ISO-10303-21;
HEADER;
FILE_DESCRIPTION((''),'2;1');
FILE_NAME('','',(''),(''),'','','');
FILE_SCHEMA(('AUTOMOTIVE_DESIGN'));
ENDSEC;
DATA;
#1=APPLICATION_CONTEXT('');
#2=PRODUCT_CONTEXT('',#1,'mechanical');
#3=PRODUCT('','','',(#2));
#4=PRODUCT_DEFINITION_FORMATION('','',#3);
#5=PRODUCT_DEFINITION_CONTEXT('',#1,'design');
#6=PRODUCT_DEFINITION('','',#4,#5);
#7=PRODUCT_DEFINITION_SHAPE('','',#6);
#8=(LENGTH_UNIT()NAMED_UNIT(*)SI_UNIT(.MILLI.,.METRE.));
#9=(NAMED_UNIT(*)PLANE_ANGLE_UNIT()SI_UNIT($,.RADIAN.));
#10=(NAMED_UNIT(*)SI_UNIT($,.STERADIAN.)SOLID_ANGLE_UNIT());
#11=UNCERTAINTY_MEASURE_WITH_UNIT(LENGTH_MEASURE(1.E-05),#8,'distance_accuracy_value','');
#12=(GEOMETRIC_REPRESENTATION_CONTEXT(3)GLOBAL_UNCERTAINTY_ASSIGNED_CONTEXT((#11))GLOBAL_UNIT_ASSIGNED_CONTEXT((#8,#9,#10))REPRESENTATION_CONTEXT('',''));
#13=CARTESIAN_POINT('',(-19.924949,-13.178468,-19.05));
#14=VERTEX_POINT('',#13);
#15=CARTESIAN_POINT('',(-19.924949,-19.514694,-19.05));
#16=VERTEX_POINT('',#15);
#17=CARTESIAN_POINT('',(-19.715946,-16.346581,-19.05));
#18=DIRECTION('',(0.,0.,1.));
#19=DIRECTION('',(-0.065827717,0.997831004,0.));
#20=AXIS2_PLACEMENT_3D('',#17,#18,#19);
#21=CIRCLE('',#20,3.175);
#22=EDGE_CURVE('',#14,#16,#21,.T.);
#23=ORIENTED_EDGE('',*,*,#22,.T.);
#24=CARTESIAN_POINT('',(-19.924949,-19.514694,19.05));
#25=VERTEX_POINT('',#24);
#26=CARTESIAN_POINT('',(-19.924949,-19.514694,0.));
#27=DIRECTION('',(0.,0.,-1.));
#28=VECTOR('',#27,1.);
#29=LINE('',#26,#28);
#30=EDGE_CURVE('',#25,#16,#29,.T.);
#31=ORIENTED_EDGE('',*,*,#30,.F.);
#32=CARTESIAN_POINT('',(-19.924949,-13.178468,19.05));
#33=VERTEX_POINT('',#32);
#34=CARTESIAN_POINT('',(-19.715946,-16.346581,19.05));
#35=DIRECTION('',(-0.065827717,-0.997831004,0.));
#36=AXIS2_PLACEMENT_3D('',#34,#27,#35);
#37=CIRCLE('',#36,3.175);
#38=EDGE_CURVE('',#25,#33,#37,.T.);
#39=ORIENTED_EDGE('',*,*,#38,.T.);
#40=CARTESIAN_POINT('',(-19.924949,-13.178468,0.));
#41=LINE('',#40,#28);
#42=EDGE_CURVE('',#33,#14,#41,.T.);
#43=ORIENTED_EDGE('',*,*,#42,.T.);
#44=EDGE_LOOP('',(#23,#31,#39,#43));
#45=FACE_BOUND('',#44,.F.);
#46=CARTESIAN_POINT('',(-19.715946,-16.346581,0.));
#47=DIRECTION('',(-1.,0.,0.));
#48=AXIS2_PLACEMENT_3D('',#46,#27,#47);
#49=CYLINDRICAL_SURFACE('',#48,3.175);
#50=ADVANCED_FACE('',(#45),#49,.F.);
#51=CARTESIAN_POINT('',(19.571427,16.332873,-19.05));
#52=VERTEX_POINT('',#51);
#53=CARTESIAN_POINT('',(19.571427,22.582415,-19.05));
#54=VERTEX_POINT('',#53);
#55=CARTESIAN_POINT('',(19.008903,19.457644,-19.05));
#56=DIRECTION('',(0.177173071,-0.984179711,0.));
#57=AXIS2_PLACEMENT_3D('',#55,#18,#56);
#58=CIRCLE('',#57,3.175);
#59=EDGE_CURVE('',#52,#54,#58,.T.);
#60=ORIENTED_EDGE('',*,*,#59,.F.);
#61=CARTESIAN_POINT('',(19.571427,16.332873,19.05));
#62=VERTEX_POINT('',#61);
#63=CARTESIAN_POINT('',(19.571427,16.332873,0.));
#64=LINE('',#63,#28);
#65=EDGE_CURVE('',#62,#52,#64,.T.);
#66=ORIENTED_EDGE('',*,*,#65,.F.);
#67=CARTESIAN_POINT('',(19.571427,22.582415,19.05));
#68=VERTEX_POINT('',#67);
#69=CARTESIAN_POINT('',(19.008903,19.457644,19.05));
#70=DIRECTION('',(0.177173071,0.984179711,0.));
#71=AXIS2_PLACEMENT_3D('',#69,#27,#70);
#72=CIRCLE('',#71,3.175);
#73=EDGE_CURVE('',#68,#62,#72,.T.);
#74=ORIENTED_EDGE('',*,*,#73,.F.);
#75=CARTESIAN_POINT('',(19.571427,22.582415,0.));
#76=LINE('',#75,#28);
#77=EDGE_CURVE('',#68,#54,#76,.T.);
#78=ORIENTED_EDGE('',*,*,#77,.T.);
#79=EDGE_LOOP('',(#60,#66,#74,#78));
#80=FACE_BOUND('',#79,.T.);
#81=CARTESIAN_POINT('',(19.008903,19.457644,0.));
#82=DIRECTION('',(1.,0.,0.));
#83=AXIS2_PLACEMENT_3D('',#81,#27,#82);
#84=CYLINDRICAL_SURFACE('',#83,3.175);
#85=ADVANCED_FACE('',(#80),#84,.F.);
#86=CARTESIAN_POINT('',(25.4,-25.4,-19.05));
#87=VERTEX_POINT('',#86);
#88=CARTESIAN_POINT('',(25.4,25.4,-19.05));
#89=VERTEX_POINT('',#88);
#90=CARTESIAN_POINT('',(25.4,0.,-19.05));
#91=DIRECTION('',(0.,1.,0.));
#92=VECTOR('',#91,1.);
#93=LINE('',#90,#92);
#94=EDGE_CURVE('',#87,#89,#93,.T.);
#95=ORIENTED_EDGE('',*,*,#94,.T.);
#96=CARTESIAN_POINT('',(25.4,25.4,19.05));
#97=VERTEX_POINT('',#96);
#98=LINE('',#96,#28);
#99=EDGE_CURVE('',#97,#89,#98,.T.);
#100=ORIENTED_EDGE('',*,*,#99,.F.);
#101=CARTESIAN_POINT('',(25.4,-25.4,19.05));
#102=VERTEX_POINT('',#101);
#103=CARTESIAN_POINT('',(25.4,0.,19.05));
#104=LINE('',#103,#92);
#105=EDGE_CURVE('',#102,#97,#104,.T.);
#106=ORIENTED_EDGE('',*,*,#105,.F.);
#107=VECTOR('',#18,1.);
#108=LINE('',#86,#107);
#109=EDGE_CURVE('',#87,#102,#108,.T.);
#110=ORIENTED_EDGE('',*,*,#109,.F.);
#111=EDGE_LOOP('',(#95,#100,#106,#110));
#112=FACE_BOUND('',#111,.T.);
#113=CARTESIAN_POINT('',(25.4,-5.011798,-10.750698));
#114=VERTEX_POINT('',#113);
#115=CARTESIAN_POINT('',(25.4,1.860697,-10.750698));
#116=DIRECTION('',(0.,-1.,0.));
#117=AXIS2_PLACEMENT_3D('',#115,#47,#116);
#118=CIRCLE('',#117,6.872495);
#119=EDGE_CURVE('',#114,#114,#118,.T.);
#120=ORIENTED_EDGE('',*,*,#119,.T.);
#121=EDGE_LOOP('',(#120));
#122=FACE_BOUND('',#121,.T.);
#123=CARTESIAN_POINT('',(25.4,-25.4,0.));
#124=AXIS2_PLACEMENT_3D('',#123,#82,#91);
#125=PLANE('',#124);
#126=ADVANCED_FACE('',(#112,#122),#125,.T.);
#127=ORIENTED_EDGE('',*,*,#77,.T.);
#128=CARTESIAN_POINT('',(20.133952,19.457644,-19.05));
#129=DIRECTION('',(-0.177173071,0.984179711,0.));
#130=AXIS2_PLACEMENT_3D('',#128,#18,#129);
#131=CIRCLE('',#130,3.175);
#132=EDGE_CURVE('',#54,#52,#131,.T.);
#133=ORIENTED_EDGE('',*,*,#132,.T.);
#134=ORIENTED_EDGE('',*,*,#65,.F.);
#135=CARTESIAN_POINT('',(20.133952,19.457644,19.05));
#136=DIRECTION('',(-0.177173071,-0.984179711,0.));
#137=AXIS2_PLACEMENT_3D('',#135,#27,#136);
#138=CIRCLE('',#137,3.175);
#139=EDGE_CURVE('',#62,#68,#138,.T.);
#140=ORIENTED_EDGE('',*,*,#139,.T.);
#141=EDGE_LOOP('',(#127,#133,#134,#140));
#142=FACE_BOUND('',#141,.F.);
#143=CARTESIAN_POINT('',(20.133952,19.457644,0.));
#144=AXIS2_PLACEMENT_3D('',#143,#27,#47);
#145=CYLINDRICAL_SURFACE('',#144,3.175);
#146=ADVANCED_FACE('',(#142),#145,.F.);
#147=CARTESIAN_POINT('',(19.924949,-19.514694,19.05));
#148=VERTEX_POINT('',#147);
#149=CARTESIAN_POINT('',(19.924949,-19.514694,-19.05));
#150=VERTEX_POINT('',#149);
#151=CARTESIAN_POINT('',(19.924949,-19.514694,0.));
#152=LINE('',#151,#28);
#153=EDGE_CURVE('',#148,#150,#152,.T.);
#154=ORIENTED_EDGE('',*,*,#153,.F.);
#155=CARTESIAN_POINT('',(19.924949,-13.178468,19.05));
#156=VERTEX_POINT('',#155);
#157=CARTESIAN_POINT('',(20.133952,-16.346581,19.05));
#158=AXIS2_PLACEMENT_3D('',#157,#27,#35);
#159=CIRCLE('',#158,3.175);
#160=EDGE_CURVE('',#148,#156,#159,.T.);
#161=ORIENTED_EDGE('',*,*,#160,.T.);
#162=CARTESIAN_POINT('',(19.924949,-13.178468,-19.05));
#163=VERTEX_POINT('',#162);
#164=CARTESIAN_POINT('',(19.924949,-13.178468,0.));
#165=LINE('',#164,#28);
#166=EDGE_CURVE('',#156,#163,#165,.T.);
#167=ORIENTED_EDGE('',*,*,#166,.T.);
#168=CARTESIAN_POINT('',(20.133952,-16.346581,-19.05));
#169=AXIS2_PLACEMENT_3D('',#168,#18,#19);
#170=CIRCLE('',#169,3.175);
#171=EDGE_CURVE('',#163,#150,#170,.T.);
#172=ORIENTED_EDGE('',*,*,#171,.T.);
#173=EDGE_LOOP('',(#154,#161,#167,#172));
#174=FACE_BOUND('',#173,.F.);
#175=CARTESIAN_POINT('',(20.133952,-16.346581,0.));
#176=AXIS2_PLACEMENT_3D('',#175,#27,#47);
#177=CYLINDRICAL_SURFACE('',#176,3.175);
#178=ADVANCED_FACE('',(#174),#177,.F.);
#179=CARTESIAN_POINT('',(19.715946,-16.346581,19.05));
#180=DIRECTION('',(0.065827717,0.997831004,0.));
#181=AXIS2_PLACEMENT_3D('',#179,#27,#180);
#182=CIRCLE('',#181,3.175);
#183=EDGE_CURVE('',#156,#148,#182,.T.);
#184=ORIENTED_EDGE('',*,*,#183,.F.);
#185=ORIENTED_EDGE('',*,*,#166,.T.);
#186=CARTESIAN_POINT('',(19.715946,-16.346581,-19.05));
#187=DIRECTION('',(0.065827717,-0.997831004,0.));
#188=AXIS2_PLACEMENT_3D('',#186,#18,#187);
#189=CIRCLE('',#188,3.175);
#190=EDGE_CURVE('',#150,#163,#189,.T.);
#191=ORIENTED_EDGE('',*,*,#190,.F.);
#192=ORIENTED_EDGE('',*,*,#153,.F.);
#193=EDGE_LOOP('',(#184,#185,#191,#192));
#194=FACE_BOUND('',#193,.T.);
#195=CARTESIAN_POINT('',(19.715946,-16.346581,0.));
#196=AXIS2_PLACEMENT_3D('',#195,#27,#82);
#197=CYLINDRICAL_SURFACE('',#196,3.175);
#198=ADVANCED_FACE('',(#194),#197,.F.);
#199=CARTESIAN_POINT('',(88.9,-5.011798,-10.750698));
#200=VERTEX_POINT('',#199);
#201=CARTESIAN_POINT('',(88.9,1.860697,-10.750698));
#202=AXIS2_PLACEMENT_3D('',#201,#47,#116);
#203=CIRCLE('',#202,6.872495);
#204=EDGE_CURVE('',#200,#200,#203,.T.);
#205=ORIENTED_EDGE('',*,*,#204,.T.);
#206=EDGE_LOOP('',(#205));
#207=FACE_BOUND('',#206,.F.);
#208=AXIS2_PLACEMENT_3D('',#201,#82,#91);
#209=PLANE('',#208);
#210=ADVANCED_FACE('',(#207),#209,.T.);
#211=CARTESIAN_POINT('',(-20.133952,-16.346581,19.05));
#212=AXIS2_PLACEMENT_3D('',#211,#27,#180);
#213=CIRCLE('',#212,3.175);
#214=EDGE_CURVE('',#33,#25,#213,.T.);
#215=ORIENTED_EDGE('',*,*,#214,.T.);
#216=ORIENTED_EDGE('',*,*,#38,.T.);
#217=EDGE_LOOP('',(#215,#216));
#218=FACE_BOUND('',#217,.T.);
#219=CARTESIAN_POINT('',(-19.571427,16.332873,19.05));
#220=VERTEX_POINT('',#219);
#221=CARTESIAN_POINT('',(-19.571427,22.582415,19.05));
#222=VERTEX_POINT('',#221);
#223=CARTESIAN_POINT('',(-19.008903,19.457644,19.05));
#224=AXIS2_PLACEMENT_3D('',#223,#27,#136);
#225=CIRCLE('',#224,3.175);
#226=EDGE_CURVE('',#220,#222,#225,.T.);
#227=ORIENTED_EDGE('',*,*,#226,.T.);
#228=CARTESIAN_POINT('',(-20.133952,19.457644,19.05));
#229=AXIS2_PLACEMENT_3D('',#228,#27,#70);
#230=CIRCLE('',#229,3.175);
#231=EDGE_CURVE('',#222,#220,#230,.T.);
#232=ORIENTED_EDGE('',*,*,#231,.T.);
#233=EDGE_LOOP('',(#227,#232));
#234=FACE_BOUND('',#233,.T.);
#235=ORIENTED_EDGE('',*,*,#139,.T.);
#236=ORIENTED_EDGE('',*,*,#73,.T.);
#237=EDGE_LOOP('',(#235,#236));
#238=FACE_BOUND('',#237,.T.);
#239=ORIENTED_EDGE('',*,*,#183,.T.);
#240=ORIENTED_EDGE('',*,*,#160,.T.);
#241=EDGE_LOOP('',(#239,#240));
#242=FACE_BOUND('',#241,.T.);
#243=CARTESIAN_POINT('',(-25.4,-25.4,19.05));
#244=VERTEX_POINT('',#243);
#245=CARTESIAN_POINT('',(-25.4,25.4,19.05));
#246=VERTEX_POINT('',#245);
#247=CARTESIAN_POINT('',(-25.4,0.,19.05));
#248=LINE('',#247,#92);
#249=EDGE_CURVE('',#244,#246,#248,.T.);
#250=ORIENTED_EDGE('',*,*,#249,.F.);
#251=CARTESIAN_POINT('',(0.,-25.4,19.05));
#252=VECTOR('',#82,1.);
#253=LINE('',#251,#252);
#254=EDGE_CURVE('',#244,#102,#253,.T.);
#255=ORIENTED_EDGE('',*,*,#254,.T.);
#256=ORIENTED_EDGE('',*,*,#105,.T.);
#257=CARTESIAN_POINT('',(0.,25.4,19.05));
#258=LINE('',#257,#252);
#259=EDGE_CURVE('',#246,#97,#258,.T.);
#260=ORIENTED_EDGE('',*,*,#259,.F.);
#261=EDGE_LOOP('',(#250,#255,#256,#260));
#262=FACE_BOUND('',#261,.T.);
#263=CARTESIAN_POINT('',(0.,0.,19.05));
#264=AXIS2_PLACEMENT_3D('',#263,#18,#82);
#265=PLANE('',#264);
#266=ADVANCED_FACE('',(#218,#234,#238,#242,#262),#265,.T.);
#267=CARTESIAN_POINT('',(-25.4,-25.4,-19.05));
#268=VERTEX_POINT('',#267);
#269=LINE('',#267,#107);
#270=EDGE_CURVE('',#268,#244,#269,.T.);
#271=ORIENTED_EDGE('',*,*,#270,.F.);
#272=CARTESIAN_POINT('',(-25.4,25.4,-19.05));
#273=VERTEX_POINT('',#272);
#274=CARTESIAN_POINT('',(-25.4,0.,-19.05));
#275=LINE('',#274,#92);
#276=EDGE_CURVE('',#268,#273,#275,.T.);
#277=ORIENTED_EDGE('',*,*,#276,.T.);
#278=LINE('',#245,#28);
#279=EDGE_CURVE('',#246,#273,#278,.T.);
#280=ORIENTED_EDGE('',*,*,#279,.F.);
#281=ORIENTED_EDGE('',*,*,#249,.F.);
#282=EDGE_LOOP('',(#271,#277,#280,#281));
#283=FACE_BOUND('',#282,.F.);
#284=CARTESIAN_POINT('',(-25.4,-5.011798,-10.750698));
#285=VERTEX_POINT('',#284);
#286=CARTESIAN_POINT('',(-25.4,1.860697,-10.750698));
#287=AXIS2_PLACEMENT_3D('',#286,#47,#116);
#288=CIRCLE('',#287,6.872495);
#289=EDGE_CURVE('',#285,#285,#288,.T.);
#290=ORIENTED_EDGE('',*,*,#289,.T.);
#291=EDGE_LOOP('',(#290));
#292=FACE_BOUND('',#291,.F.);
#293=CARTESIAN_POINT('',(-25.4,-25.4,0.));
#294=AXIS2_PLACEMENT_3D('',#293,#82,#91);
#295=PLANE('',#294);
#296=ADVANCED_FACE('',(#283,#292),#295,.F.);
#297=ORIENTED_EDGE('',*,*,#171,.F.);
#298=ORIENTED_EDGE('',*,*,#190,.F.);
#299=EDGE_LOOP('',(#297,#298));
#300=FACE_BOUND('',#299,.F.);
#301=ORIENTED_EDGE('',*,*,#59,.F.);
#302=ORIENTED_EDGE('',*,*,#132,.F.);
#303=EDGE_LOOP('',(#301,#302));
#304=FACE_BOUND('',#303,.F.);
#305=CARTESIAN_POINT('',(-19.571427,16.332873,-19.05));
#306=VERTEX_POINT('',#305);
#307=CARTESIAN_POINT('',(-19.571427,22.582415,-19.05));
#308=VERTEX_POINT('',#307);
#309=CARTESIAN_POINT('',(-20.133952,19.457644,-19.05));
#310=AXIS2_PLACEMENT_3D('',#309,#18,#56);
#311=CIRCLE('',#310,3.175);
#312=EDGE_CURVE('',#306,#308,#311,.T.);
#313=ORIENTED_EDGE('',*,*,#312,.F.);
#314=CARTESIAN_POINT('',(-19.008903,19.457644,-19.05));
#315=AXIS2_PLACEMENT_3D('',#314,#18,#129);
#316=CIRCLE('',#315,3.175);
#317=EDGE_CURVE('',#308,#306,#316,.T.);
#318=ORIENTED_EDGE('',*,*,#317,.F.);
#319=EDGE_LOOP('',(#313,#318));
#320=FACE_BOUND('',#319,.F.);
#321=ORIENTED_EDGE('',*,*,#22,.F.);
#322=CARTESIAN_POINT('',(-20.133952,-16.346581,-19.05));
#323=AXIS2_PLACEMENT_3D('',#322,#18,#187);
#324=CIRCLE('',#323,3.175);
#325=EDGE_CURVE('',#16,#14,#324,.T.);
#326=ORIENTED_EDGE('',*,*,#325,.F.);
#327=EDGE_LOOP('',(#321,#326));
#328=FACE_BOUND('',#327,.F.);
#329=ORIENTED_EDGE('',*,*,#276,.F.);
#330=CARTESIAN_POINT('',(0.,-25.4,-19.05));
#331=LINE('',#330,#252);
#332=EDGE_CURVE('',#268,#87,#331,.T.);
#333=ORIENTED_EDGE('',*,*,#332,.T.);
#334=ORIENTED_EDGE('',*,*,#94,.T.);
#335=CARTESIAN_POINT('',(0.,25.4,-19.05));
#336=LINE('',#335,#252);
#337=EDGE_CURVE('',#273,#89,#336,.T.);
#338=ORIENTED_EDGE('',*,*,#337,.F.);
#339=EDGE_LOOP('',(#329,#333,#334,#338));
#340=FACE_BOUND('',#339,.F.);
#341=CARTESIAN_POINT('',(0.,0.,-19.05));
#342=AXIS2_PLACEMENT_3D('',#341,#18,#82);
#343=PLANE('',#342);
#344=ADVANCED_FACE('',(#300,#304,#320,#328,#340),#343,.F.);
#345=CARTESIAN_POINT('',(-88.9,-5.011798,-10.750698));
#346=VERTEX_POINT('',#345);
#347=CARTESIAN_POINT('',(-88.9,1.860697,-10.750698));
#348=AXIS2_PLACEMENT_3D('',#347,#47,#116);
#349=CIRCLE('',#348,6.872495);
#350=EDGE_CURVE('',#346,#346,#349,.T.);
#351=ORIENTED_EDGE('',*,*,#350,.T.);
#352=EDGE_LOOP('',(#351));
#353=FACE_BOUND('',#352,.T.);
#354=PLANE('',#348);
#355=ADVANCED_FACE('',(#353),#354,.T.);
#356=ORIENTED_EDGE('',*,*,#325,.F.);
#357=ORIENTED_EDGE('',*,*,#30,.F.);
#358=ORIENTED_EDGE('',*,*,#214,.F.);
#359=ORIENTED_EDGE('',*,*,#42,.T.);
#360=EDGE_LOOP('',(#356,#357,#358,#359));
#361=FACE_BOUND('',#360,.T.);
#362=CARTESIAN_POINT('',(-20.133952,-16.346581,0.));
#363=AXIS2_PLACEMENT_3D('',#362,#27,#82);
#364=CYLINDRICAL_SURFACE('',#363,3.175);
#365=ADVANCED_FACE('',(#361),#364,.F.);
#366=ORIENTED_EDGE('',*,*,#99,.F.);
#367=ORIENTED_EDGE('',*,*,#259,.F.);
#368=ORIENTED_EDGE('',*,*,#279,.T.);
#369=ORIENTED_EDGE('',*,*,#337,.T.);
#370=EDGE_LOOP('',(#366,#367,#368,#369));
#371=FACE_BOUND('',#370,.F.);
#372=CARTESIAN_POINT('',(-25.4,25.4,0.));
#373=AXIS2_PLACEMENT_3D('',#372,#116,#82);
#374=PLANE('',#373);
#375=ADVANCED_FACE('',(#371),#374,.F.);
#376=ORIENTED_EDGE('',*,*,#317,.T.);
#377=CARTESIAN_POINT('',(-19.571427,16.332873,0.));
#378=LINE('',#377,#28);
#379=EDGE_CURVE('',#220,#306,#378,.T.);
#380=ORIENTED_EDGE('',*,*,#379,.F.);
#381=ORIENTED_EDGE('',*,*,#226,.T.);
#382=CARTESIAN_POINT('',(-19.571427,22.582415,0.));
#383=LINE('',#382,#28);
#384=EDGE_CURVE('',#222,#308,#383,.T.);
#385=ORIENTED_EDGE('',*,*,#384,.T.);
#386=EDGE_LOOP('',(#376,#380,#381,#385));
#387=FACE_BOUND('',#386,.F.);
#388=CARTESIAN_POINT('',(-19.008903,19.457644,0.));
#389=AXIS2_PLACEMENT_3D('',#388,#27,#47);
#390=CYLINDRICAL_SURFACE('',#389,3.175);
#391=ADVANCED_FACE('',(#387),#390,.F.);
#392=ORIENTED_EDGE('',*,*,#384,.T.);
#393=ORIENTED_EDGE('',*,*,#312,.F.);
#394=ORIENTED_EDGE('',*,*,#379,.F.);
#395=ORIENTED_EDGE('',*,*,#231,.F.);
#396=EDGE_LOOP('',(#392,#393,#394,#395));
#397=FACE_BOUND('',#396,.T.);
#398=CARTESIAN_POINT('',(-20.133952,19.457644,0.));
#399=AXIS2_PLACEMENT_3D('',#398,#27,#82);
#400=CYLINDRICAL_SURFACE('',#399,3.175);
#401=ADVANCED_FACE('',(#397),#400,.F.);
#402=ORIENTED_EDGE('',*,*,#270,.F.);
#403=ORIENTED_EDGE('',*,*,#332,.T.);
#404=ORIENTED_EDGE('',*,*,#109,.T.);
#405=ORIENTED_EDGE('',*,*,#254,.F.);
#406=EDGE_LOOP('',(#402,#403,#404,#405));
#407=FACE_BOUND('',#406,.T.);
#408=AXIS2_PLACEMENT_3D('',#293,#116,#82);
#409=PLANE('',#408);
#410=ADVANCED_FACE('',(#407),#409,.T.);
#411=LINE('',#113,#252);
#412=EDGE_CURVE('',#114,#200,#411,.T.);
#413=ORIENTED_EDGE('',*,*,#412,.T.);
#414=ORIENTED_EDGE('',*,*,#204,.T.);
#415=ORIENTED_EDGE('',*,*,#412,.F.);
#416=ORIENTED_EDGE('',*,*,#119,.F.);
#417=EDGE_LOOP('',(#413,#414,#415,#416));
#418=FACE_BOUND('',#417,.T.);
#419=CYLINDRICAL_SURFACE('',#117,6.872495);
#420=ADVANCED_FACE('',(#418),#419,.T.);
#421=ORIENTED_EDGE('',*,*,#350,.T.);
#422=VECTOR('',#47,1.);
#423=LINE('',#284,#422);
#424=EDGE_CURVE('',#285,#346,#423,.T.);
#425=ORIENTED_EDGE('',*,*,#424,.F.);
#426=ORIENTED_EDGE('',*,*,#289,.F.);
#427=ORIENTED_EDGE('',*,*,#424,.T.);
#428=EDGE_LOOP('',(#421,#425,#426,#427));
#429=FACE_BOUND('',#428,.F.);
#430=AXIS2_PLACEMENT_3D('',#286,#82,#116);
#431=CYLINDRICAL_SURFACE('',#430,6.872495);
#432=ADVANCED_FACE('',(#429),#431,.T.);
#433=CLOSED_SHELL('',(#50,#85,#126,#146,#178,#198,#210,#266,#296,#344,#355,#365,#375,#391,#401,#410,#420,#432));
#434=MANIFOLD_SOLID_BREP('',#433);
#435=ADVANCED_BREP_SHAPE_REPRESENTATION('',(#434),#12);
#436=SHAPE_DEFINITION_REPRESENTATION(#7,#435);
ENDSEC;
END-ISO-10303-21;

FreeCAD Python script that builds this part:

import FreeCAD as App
import Part
import Sketcher

V = App.Vector
Q = App.Units.Quantity


def add_polygon(sketch, points):
    """Adds a closed chain of lines whose ends are joined by coincident constraints."""
    first, n = sketch.GeometryCount, len(points)
    for a, b in zip(points, points[1:] + points[:1]):
        sketch.addGeometry(Part.LineSegment(App.Vector(*a, 0), App.Vector(*b, 0)), False)
    for i in range(n):
        sketch.addConstraint(Sketcher.Constraint("Coincident", first + i, 2, first + (i + 1) % n, 1))

doc = App.newDocument("Part")
body = doc.addObject("PartDesign::Body", "Body")

sketch1 = body.newObject("Sketcher::SketchObject", "Sketch")
sketch1.AttachmentSupport = (doc.getObject("XY_Plane"), [""])
sketch1.MapMode = "FlatFace"
add_polygon(sketch1, [(-25.4, 25.4), (-25.4, -25.4), (25.4, -25.4), (25.4, 25.4)])
sketch1.addGeometry(Part.Circle(V(-20.1, -16.3, 0), V(0, 0, 1), 3.2), False)
sketch1.addGeometry(Part.Circle(V(19.7, -16.3, 0), V(0, 0, 1), 3.2), False)
sketch1.addGeometry(Part.Circle(V(-20.1, 19.5, 0), V(0, 0, 1), 3.2), False)
sketch1.addGeometry(Part.Circle(V(19, 19.5, 0), V(0, 0, 1), 3.2), False)
sketch1.addConstraint([
    Sketcher.Constraint("Vertical", 0),
    Sketcher.Constraint("Horizontal", 1),
    Sketcher.Constraint("Vertical", 2),
    Sketcher.Constraint("Horizontal", 3),
    Sketcher.Constraint("Equal", 4, 5),
    Sketcher.Constraint("Equal", 5, 6),
    Sketcher.Constraint("Equal", 6, 7),
    Sketcher.Constraint("Symmetric", 0, 2, 2, 2, -1, 1),
    Sketcher.Constraint("Horizontal", 4, 3, 5, 3),
    Sketcher.Constraint("Horizontal", 6, 3, 7, 3),
    Sketcher.Constraint("Vertical", 4, 3, 6, 3),
    Sketcher.Constraint("Equal", 3, 0),
    Sketcher.Constraint("Diameter", 4, Q("0.25 in")),
    Sketcher.Constraint("DistanceX", 1, 1, 1, 2, Q("2 in")),
    Sketcher.Constraint("DistanceY", 4, 3, -1, 1, 16.346581),
    Sketcher.Constraint("DistanceX", 4, 3, -1, 1, 20.133952),
    Sketcher.Constraint("DistanceX", -1, 1, 5, 3, 19.715946),
    Sketcher.Constraint("DistanceY", -1, 1, 6, 3, 19.457644),
    Sketcher.Constraint("DistanceX", -1, 1, 7, 3, 19.008903),
])
pad1 = body.newObject("PartDesign::Pad", "Pad")
pad1.Profile = sketch1
pad1.Length = Q("1.5 in")
pad1.Midplane = True

sketch2 = body.newObject("Sketcher::SketchObject", "Sketch001")
sketch2.AttachmentSupport = (doc.getObject("YZ_Plane"), [""])
sketch2.MapMode = "FlatFace"
sketch2.AttachmentOffset = App.Placement(V(0, 0, -1 * 25.4), App.Rotation())
sketch2.addGeometry(Part.Circle(V(2, -11, 0), V(0, 0, 1), 7), False)
sketch2.addConstraint([
    Sketcher.Constraint("Diameter", 0, 13.74499),
    Sketcher.Constraint("DistanceX", -1, 1, 0, 3, 1.860697),
    Sketcher.Constraint("DistanceY", 0, 3, -1, 1, 10.750698),
])
pad2 = body.newObject("PartDesign::Pad", "Pad001")
pad2.Profile = sketch2
pad2.Length = Q("2.5 in")
pad2.Reversed = True
body2 = doc.addObject("PartDesign::Body", "Body001")
doc.recompute()

body2.BaseFeature = body
doc.recompute()

mirroring = doc.addObject("Part::Mirroring", "Mirroring")
mirroring.Source = body
mirroring.Base = V(0, 0, 0)
mirroring.Normal = V(1, 0, 0)
body3 = doc.addObject("PartDesign::Body", "Body002")
body3.BaseFeature = mirroring
boolean = body2.newObject("PartDesign::Boolean", "Boolean")
boolean.Type = "Fuse"
boolean.addObjects([body3])
doc.recompute()
mirroring.Visibility = False

doc.recompute()
